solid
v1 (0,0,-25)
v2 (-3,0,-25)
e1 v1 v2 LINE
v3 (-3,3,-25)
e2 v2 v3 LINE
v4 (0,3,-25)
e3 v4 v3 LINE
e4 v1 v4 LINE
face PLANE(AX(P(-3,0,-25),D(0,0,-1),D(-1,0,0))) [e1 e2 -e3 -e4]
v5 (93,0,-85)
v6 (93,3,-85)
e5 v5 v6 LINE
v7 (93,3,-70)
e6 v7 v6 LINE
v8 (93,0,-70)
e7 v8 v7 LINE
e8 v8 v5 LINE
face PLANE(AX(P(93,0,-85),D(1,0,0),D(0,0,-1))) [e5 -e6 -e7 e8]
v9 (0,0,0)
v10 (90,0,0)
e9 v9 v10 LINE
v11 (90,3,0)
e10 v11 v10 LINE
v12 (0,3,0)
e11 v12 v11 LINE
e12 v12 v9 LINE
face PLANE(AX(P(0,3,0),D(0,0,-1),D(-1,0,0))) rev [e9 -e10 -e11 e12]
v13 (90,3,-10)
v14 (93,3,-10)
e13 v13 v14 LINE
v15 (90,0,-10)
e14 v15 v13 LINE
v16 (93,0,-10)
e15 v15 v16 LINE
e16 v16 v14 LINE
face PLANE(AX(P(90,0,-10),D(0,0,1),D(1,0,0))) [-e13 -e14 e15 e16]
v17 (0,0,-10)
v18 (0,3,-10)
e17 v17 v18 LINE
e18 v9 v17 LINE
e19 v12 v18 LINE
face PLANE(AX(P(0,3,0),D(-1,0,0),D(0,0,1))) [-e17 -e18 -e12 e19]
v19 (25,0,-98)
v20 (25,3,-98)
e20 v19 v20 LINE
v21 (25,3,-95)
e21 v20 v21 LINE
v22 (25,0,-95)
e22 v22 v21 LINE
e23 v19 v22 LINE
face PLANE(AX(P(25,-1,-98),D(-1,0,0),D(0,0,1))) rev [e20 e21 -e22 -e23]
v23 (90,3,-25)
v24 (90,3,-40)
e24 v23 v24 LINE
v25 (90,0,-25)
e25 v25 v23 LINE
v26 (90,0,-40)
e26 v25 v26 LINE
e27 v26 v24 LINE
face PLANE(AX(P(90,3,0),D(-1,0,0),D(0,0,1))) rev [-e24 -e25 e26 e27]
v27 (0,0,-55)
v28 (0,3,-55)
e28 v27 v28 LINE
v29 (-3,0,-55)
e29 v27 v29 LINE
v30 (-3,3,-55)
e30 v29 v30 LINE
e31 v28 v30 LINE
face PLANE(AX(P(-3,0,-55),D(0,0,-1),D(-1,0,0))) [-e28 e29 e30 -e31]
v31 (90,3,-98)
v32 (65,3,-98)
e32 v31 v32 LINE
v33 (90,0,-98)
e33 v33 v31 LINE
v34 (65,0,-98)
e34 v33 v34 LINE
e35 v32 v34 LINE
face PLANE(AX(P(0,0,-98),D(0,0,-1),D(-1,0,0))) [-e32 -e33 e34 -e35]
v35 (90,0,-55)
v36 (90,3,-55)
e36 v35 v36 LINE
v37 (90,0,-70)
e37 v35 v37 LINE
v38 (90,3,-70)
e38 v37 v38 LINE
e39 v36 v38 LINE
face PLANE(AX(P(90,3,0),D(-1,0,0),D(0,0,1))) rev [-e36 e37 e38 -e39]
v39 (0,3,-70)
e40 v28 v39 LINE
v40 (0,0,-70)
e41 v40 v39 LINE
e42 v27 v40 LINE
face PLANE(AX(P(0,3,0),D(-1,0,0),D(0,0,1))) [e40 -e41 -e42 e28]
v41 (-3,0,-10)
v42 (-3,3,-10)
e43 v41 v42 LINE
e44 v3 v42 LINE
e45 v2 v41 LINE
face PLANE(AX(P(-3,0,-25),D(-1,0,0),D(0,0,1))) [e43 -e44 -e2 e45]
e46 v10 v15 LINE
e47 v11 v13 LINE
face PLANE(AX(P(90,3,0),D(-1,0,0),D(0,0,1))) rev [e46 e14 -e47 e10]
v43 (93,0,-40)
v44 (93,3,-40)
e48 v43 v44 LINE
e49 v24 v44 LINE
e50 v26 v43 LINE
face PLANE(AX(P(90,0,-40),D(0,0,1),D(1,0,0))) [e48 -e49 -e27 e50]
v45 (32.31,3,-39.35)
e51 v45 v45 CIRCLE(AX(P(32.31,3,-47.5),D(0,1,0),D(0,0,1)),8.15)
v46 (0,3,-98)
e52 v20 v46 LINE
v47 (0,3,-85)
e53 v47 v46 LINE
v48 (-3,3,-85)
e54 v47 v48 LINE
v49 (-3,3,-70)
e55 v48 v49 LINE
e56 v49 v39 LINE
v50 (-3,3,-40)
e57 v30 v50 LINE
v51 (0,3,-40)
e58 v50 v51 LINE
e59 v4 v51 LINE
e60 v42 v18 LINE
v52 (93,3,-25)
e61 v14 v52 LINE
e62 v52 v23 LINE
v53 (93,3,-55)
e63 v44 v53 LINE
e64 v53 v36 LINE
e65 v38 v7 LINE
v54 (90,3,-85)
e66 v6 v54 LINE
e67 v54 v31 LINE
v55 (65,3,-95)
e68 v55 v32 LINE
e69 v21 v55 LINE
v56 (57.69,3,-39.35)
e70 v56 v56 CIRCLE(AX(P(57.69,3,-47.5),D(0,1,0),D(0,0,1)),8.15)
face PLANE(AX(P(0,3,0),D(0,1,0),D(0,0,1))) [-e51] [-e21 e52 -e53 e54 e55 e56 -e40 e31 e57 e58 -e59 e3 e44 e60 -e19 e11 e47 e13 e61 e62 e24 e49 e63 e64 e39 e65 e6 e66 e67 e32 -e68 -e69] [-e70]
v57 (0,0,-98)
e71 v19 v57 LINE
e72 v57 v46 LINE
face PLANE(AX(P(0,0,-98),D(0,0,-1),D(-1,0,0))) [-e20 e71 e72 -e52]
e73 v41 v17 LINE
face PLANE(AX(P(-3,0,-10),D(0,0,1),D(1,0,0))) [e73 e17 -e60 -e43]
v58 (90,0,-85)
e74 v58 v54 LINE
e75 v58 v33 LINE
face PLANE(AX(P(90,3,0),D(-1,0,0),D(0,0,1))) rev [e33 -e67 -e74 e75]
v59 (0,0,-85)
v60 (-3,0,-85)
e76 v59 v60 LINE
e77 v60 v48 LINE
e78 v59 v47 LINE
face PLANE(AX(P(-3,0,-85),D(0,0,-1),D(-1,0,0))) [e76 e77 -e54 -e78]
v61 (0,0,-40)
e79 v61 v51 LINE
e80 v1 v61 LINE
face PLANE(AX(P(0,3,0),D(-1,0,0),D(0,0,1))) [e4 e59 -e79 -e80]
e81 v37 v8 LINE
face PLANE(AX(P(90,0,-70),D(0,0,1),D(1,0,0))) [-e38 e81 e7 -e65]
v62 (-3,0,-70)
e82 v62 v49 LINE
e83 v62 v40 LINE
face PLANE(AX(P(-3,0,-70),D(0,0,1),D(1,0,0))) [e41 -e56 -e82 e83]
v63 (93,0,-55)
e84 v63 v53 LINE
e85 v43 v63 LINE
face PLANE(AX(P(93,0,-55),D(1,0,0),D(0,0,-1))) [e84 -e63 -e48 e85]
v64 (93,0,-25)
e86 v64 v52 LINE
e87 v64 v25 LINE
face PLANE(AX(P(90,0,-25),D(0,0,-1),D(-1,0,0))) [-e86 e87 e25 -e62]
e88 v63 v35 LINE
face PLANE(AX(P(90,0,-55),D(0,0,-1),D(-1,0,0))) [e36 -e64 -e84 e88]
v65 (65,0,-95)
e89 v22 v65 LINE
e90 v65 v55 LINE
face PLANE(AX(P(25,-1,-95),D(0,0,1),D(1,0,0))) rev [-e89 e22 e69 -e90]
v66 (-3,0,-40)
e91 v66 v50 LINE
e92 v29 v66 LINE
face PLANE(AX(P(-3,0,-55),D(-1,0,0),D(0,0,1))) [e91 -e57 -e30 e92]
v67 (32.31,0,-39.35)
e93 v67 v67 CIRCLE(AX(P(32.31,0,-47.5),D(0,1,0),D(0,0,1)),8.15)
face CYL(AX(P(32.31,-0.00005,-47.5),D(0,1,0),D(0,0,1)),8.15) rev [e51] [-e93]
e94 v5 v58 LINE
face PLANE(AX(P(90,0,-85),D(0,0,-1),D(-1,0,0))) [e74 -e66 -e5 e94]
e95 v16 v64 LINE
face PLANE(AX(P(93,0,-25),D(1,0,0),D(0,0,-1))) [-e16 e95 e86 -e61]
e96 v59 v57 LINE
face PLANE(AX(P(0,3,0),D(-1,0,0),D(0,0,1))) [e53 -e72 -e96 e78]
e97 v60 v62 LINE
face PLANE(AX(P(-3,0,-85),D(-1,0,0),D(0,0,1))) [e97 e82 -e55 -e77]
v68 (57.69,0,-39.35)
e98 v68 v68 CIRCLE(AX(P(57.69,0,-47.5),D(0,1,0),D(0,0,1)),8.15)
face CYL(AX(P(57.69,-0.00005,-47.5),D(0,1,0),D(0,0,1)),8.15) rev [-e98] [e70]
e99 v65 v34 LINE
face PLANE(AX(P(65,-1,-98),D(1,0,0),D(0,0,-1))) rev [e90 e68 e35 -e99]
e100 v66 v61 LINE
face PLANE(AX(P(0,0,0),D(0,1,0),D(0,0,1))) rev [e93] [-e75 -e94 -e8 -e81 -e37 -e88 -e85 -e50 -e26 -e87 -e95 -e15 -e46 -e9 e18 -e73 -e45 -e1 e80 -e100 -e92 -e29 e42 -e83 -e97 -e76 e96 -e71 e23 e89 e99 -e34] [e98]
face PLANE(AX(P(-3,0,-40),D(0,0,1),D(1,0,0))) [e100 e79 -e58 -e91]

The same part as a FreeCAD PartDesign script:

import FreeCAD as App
import Part
import Sketcher

V = App.Vector

doc = App.newDocument("Part")
body = doc.addObject("PartDesign::Body", "Body")

# Sketch on XZ plane
sketch1 = body.newObject("Sketcher::SketchObject", "Sketch")
sketch1.AttachmentSupport = (doc.getObject("XZ_Plane"), [""])
sketch1.MapMode = "FlatFace"
sketch1.addGeometry([
    Part.LineSegment(V(0, -95, 0), V(0, 0, 0)),
    Part.LineSegment(V(0, 0, 0), V(90, 0, 0)),
    Part.LineSegment(V(90, 0, 0), V(90, -95, 0)),
    Part.LineSegment(V(90, -95, 0), V(0, -95, 0)),
], False)
sketch1.addConstraint([
    Sketcher.Constraint("Coincident", 0, 2, 1, 1),
    Sketcher.Constraint("Coincident", 1, 2, 2, 1),
    Sketcher.Constraint("Coincident", 2, 2, 3, 1),
    Sketcher.Constraint("Coincident", 3, 2, 0, 1),
    Sketcher.Constraint("Vertical", 0),
    Sketcher.Constraint("Horizontal", 1),
    Sketcher.Constraint("Vertical", 2),
    Sketcher.Constraint("Horizontal", 3),
    Sketcher.Constraint("Coincident", 0, 2, -1, 1),
    Sketcher.Constraint("DistanceX", 1, 1, 1, 2, 90.0),
    Sketcher.Constraint("DistanceY", 0, 1, 0, 2, 95.0),
])
pad1 = body.newObject("PartDesign::Pad", "Pad")
pad1.Profile = sketch1
pad1.Length = 3
pad1.Reversed = True

# Sketch on XZ plane
sketch2 = body.newObject("Sketcher::SketchObject", "Sketch001")
sketch2.AttachmentSupport = (doc.getObject("XZ_Plane"), [""])
sketch2.MapMode = "FlatFace"
sketch2.AttachmentOffset = App.Placement(V(0, 0, -3), App.Rotation())
sketch2.addGeometry([
    Part.LineSegment(V(-3, -85, 0), V(-3, -70, 0)),  # 0
    Part.LineSegment(V(-3, -70, 0), V(0, -70, 0)),  # 1
    Part.LineSegment(V(0, -70, 0), V(0, -85, 0)),  # 2
    Part.LineSegment(V(0, -85, 0), V(-3, -85, 0)),  # 3
    Part.LineSegment(V(-3, -55, 0), V(-3, -40, 0)),  # 4
    Part.LineSegment(V(-3, -40, 0), V(0, -40, 0)),  # 5
    Part.LineSegment(V(0, -40, 0), V(0, -55, 0)),  # 6
    Part.LineSegment(V(0, -55, 0), V(-3, -55, 0)),  # 7
    Part.LineSegment(V(-3, -25, 0), V(-3, -10, 0)),  # 8
    Part.LineSegment(V(-3, -10, 0), V(0, -10, 0)),  # 9
    Part.LineSegment(V(0, -10, 0), V(0, -25, 0)),  # 10
    Part.LineSegment(V(0, -25, 0), V(-3, -25, 0)),  # 11
    Part.LineSegment(V(90, -85, 0), V(90, -70, 0)),  # 12
    Part.LineSegment(V(90, -70, 0), V(93, -70, 0)),  # 13
    Part.LineSegment(V(93, -70, 0), V(93, -85, 0)),  # 14
    Part.LineSegment(V(93, -85, 0), V(90, -85, 0)),  # 15
    Part.LineSegment(V(90, -55, 0), V(90, -40, 0)),  # 16
    Part.LineSegment(V(90, -40, 0), V(93, -40, 0)),  # 17
    Part.LineSegment(V(93, -40, 0), V(93, -55, 0)),  # 18
    Part.LineSegment(V(93, -55, 0), V(90, -55, 0)),  # 19
    Part.LineSegment(V(90, -25, 0), V(90, -10, 0)),  # 20
    Part.LineSegment(V(90, -10, 0), V(93, -10, 0)),  # 21
    Part.LineSegment(V(93, -10, 0), V(93, -25, 0)),  # 22
    Part.LineSegment(V(93, -25, 0), V(90, -25, 0)),  # 23
], False)
sketch2.addConstraint([
    Sketcher.Constraint("Coincident", 0, 2, 1, 1),
    Sketcher.Constraint("Coincident", 1, 2, 2, 1),
    Sketcher.Constraint("Coincident", 2, 2, 3, 1),
    Sketcher.Constraint("Coincident", 3, 2, 0, 1),
    Sketcher.Constraint("Coincident", 4, 2, 5, 1),
    Sketcher.Constraint("Coincident", 5, 2, 6, 1),
    Sketcher.Constraint("Coincident", 6, 2, 7, 1),
    Sketcher.Constraint("Coincident", 7, 2, 4, 1),
    Sketcher.Constraint("Coincident", 8, 2, 9, 1),
    Sketcher.Constraint("Coincident", 9, 2, 10, 1),
    Sketcher.Constraint("Coincident", 10, 2, 11, 1),
    Sketcher.Constraint("Coincident", 11, 2, 8, 1),
    Sketcher.Constraint("Coincident", 12, 2, 13, 1),
    Sketcher.Constraint("Coincident", 13, 2, 14, 1),
    Sketcher.Constraint("Coincident", 14, 2, 15, 1),
    Sketcher.Constraint("Coincident", 15, 2, 12, 1),
    Sketcher.Constraint("Coincident", 16, 2, 17, 1),
    Sketcher.Constraint("Coincident", 17, 2, 18, 1),
    Sketcher.Constraint("Coincident", 18, 2, 19, 1),
    Sketcher.Constraint("Coincident", 19, 2, 16, 1),
    Sketcher.Constraint("Coincident", 20, 2, 21, 1),
    Sketcher.Constraint("Coincident", 21, 2, 22, 1),
    Sketcher.Constraint("Coincident", 22, 2, 23, 1),
    Sketcher.Constraint("Coincident", 23, 2, 20, 1),
    Sketcher.Constraint("Vertical", 0),
    Sketcher.Constraint("Horizontal", 1),
    Sketcher.Constraint("Vertical", 2),
    Sketcher.Constraint("Horizontal", 3),
    Sketcher.Constraint("Vertical", 4),
    Sketcher.Constraint("Horizontal", 5),
    Sketcher.Constraint("Vertical", 6),
    Sketcher.Constraint("Horizontal", 7),
    Sketcher.Constraint("Vertical", 8),
    Sketcher.Constraint("Horizontal", 9),
    Sketcher.Constraint("Vertical", 10),
    Sketcher.Constraint("Horizontal", 11),
    Sketcher.Constraint("Vertical", 12),
    Sketcher.Constraint("Horizontal", 13),
    Sketcher.Constraint("Vertical", 14),
    Sketcher.Constraint("Horizontal", 15),
    Sketcher.Constraint("Vertical", 16),
    Sketcher.Constraint("Horizontal", 17),
    Sketcher.Constraint("Vertical", 18),
    Sketcher.Constraint("Horizontal", 19),
    Sketcher.Constraint("Vertical", 20),
    Sketcher.Constraint("Horizontal", 21),
    Sketcher.Constraint("Vertical", 22),
    Sketcher.Constraint("Horizontal", 23),
    Sketcher.Constraint("PointOnObject", 1, 2, -2),
    Sketcher.Constraint("PointOnObject", 5, 2, -2),
    Sketcher.Constraint("PointOnObject", 9, 2, -2),
    Sketcher.Constraint("Horizontal", 1, 2, 12, 2),
    Sketcher.Constraint("Horizontal", 3, 2, 14, 2),
    Sketcher.Constraint("Horizontal", 5, 2, 16, 2),
    Sketcher.Constraint("Horizontal", 7, 2, 18, 2),
    Sketcher.Constraint("Horizontal", 9, 2, 20, 2),
    Sketcher.Constraint("Horizontal", 11, 2, 22, 2),
    Sketcher.Constraint("Vertical", 3, 2, 4, 2),
    Sketcher.Constraint("Vertical", 7, 2, 8, 2),
    Sketcher.Constraint("Vertical", 15, 2, 16, 2),
    Sketcher.Constraint("Vertical", 14, 2, 17, 2),
    Sketcher.Constraint("Vertical", 19, 2, 20, 2),
    Sketcher.Constraint("Vertical", 18, 2, 21, 2),
    Sketcher.Constraint("Equal", 11, 13),
    Sketcher.Constraint("Equal", 2, 4),
    Sketcher.Constraint("Equal", 6, 8),
    Sketcher.Constraint("DistanceX", 1, 1, 1, 2, 3.0),
    Sketcher.Constraint("DistanceY", 0, 1, 0, 2, 15.0),
    Sketcher.Constraint("DistanceY", 0, 2, -1, 1, 70.0),
    Sketcher.Constraint("DistanceY", 4, 2, -1, 1, 40.0),
    Sketcher.Constraint("DistanceY", 8, 2, -1, 1, 10.0),
    Sketcher.Constraint("DistanceX", -1, 1, 12, 2, 90.0),
])
pad2 = body.newObject("PartDesign::Pad", "Pad001")
pad2.Profile = sketch2
pad2.Length = 3

# Sketch on XZ plane
sketch3 = body.newObject("Sketcher::SketchObject", "Sketch002")
sketch3.AttachmentSupport = (doc.getObject("XZ_Plane"), [""])
sketch3.MapMode = "FlatFace"
sketch3.AttachmentOffset = App.Placement(V(0, 0, -3), App.Rotation())
sketch3.addGeometry([
    Part.LineSegment(V(0, -98, 0), V(0, -95, 0)),
    Part.LineSegment(V(0, -95, 0), V(90, -95, 0)),
    Part.LineSegment(V(90, -95, 0), V(90, -98, 0)),
    Part.LineSegment(V(90, -98, 0), V(0, -98, 0)),
], False)
sketch3.addConstraint([
    Sketcher.Constraint("Coincident", 0, 2, 1, 1),
    Sketcher.Constraint("Coincident", 1, 2, 2, 1),
    Sketcher.Constraint("Coincident", 2, 2, 3, 1),
    Sketcher.Constraint("Coincident", 3, 2, 0, 1),
    Sketcher.Constraint("Vertical", 0),
    Sketcher.Constraint("Horizontal", 1),
    Sketcher.Constraint("Vertical", 2),
    Sketcher.Constraint("Horizontal", 3),
    Sketcher.Constraint("PointOnObject", 0, 2, -2),
    Sketcher.Constraint("DistanceX", 1, 1, 1, 2, 90.0),
    Sketcher.Constraint("DistanceY", 0, 1, 0, 2, 3.0),
    Sketcher.Constraint("DistanceY", 0, 2, -1, 1, 95.0),
])
pad3 = body.newObject("PartDesign::Pad", "Pad002")
pad3.Profile = sketch3
pad3.Length = 3

# Sketch on XZ plane
sketch4 = body.newObject("Sketcher::SketchObject", "Sketch003")
sketch4.AttachmentSupport = (doc.getObject("XZ_Plane"), [""])
sketch4.MapMode = "FlatFace"
sketch4.AttachmentOffset = App.Placement(V(0, 0, -3), App.Rotation())
sketch4.addGeometry([
    Part.LineSegment(V(25, -98, 0), V(25, -95, 0)),
    Part.LineSegment(V(25, -95, 0), V(65, -95, 0)),
    Part.LineSegment(V(65, -95, 0), V(65, -98, 0)),
    Part.LineSegment(V(65, -98, 0), V(25, -98, 0)),
], False)
sketch4.addConstraint([
    Sketcher.Constraint("Coincident", 0, 2, 1, 1),
    Sketcher.Constraint("Coincident", 1, 2, 2, 1),
    Sketcher.Constraint("Coincident", 2, 2, 3, 1),
    Sketcher.Constraint("Coincident", 3, 2, 0, 1),
    Sketcher.Constraint("Vertical", 0),
    Sketcher.Constraint("Horizontal", 1),
    Sketcher.Constraint("Vertical", 2),
    Sketcher.Constraint("Horizontal", 3),
    Sketcher.Constraint("DistanceX", 1, 1, 1, 2, 40.0),
    Sketcher.Constraint("DistanceY", 0, 1, 0, 2, 3.0),
    Sketcher.Constraint("DistanceX", -1, 1, 0, 2, 25.0),
    Sketcher.Constraint("DistanceY", 0, 2, -1, 1, 95.0),
])
pocket1 = body.newObject("PartDesign::Pocket", "Pocket")
pocket1.Profile = sketch4
pocket1.Length = 4
pocket1.Reversed = True

# Sketch on XZ plane
sketch5 = body.newObject("Sketcher::SketchObject", "Sketch004")
sketch5.AttachmentSupport = (doc.getObject("XZ_Plane"), [""])
sketch5.MapMode = "FlatFace"
sketch5.AttachmentOffset = App.Placement(V(0, 0, -3), App.Rotation())
sketch5.addGeometry([
    Part.Circle(V(32, -48, 0), V(0, 0, 1), 8),
    Part.Circle(V(58, -48, 0), V(0, 0, 1), 8),
], False)
sketch5.addConstraint([
    Sketcher.Constraint("Equal", 0, 1),
    Sketcher.Constraint("Horizontal", 0, 3, 1, 3),
    Sketcher.Constraint("Diameter", 0, 16.3),
    Sketcher.Constraint("DistanceY", 0, 3, -1, 1, 47.5),
    Sketcher.Constraint("DistanceX", -1, 1, 0, 3, 32.31),
    Sketcher.Constraint("DistanceX", -1, 1, 1, 3, 57.69),
])
pocket2 = body.newObject("PartDesign::Pocket", "Pocket001")
pocket2.Profile = sketch5
pocket2.Type = "ThroughAll"
pocket2.Reversed = True

doc.recompute()
